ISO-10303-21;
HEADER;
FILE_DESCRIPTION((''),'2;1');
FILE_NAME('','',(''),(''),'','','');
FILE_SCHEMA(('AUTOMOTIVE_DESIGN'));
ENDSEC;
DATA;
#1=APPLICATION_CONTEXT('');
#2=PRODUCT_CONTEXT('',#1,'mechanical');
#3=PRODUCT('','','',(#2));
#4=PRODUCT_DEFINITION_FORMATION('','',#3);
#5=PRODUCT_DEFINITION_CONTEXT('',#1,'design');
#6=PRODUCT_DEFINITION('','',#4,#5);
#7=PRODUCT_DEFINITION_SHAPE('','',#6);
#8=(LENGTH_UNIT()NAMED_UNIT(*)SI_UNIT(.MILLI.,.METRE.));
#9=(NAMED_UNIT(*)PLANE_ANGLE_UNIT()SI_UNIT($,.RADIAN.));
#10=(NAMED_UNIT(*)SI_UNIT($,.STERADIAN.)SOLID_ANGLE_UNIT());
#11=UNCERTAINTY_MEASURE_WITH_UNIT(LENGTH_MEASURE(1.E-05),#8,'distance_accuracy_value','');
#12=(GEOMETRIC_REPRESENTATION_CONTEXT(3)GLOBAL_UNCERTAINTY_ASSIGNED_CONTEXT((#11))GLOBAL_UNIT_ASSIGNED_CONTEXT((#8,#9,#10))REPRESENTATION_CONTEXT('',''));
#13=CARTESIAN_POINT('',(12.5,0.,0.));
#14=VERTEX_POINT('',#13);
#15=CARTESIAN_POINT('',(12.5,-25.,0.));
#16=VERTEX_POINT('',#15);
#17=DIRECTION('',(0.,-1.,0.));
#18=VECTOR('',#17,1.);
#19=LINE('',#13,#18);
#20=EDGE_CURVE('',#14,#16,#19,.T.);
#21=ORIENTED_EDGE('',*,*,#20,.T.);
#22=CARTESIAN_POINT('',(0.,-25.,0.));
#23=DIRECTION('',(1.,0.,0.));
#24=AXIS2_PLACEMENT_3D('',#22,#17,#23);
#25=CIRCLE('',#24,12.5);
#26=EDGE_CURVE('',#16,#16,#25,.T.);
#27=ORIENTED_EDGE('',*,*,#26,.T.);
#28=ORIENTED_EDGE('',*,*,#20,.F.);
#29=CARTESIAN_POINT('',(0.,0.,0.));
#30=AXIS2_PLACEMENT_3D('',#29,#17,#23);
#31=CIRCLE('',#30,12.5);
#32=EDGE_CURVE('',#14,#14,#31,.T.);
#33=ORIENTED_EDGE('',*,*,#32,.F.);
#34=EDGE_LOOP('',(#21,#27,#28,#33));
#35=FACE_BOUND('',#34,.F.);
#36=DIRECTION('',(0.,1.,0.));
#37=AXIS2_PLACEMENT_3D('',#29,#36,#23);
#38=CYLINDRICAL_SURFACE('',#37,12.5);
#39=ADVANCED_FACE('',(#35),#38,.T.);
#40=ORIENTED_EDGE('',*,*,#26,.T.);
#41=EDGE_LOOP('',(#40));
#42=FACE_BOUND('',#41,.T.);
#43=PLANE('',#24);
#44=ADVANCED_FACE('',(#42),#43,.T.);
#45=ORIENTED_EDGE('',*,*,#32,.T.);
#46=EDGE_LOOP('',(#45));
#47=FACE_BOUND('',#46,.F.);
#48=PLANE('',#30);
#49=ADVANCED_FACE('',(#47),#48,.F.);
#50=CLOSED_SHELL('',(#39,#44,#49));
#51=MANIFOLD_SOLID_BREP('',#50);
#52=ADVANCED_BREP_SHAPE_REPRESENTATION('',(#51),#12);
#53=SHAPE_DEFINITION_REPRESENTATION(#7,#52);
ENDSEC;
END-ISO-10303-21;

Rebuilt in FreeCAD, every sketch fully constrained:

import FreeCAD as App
import Part
import Sketcher

V = App.Vector

doc = App.newDocument("Part")
body = doc.addObject("PartDesign::Body", "Body")

# Sketch on XZ plane
sketch1 = body.newObject("Sketcher::SketchObject", "Sketch")
sketch1.AttachmentSupport = (doc.getObject("XZ_Plane"), [""])
sketch1.MapMode = "FlatFace"
sketch1.addGeometry(Part.Circle(V(0, 0, 0), V(0, 0, 1), 12.5), False)
sketch1.addConstraint(Sketcher.Constraint("Coincident", 0, 3, -1, 1))
sketch1.addConstraint(Sketcher.Constraint("Diameter", 0, 25.0))
pad1 = body.newObject("PartDesign::Pad", "Pad")
pad1.Profile = sketch1
pad1.Length = 25
body2 = doc.addObject("PartDesign::Body", "Body001")

# Sketch on XZ plane
sketch2 = body2.newObject("Sketcher::SketchObject", "Sketch001")
sketch2.AttachmentSupport = (doc.getObject("XZ_Plane001"), [""])
sketch2.MapMode = "FlatFace"
sketch2.addGeometry(Part.Circle(V(0, 40, 0), V(0, 0, 1), 10), False)
sketch2.addConstraint(Sketcher.Constraint("PointOnObject", 0, 3, -2))
sketch2.addConstraint(Sketcher.Constraint("Diameter", 0, 20.0))
sketch2.addConstraint(Sketcher.Constraint("DistanceY", -1, 1, 0, 3, 40.0))
pad2 = body2.newObject("PartDesign::Pad", "Pad001")
pad2.Profile = sketch2
pad2.Length = 25
body2.Visibility = False

doc.recompute()
